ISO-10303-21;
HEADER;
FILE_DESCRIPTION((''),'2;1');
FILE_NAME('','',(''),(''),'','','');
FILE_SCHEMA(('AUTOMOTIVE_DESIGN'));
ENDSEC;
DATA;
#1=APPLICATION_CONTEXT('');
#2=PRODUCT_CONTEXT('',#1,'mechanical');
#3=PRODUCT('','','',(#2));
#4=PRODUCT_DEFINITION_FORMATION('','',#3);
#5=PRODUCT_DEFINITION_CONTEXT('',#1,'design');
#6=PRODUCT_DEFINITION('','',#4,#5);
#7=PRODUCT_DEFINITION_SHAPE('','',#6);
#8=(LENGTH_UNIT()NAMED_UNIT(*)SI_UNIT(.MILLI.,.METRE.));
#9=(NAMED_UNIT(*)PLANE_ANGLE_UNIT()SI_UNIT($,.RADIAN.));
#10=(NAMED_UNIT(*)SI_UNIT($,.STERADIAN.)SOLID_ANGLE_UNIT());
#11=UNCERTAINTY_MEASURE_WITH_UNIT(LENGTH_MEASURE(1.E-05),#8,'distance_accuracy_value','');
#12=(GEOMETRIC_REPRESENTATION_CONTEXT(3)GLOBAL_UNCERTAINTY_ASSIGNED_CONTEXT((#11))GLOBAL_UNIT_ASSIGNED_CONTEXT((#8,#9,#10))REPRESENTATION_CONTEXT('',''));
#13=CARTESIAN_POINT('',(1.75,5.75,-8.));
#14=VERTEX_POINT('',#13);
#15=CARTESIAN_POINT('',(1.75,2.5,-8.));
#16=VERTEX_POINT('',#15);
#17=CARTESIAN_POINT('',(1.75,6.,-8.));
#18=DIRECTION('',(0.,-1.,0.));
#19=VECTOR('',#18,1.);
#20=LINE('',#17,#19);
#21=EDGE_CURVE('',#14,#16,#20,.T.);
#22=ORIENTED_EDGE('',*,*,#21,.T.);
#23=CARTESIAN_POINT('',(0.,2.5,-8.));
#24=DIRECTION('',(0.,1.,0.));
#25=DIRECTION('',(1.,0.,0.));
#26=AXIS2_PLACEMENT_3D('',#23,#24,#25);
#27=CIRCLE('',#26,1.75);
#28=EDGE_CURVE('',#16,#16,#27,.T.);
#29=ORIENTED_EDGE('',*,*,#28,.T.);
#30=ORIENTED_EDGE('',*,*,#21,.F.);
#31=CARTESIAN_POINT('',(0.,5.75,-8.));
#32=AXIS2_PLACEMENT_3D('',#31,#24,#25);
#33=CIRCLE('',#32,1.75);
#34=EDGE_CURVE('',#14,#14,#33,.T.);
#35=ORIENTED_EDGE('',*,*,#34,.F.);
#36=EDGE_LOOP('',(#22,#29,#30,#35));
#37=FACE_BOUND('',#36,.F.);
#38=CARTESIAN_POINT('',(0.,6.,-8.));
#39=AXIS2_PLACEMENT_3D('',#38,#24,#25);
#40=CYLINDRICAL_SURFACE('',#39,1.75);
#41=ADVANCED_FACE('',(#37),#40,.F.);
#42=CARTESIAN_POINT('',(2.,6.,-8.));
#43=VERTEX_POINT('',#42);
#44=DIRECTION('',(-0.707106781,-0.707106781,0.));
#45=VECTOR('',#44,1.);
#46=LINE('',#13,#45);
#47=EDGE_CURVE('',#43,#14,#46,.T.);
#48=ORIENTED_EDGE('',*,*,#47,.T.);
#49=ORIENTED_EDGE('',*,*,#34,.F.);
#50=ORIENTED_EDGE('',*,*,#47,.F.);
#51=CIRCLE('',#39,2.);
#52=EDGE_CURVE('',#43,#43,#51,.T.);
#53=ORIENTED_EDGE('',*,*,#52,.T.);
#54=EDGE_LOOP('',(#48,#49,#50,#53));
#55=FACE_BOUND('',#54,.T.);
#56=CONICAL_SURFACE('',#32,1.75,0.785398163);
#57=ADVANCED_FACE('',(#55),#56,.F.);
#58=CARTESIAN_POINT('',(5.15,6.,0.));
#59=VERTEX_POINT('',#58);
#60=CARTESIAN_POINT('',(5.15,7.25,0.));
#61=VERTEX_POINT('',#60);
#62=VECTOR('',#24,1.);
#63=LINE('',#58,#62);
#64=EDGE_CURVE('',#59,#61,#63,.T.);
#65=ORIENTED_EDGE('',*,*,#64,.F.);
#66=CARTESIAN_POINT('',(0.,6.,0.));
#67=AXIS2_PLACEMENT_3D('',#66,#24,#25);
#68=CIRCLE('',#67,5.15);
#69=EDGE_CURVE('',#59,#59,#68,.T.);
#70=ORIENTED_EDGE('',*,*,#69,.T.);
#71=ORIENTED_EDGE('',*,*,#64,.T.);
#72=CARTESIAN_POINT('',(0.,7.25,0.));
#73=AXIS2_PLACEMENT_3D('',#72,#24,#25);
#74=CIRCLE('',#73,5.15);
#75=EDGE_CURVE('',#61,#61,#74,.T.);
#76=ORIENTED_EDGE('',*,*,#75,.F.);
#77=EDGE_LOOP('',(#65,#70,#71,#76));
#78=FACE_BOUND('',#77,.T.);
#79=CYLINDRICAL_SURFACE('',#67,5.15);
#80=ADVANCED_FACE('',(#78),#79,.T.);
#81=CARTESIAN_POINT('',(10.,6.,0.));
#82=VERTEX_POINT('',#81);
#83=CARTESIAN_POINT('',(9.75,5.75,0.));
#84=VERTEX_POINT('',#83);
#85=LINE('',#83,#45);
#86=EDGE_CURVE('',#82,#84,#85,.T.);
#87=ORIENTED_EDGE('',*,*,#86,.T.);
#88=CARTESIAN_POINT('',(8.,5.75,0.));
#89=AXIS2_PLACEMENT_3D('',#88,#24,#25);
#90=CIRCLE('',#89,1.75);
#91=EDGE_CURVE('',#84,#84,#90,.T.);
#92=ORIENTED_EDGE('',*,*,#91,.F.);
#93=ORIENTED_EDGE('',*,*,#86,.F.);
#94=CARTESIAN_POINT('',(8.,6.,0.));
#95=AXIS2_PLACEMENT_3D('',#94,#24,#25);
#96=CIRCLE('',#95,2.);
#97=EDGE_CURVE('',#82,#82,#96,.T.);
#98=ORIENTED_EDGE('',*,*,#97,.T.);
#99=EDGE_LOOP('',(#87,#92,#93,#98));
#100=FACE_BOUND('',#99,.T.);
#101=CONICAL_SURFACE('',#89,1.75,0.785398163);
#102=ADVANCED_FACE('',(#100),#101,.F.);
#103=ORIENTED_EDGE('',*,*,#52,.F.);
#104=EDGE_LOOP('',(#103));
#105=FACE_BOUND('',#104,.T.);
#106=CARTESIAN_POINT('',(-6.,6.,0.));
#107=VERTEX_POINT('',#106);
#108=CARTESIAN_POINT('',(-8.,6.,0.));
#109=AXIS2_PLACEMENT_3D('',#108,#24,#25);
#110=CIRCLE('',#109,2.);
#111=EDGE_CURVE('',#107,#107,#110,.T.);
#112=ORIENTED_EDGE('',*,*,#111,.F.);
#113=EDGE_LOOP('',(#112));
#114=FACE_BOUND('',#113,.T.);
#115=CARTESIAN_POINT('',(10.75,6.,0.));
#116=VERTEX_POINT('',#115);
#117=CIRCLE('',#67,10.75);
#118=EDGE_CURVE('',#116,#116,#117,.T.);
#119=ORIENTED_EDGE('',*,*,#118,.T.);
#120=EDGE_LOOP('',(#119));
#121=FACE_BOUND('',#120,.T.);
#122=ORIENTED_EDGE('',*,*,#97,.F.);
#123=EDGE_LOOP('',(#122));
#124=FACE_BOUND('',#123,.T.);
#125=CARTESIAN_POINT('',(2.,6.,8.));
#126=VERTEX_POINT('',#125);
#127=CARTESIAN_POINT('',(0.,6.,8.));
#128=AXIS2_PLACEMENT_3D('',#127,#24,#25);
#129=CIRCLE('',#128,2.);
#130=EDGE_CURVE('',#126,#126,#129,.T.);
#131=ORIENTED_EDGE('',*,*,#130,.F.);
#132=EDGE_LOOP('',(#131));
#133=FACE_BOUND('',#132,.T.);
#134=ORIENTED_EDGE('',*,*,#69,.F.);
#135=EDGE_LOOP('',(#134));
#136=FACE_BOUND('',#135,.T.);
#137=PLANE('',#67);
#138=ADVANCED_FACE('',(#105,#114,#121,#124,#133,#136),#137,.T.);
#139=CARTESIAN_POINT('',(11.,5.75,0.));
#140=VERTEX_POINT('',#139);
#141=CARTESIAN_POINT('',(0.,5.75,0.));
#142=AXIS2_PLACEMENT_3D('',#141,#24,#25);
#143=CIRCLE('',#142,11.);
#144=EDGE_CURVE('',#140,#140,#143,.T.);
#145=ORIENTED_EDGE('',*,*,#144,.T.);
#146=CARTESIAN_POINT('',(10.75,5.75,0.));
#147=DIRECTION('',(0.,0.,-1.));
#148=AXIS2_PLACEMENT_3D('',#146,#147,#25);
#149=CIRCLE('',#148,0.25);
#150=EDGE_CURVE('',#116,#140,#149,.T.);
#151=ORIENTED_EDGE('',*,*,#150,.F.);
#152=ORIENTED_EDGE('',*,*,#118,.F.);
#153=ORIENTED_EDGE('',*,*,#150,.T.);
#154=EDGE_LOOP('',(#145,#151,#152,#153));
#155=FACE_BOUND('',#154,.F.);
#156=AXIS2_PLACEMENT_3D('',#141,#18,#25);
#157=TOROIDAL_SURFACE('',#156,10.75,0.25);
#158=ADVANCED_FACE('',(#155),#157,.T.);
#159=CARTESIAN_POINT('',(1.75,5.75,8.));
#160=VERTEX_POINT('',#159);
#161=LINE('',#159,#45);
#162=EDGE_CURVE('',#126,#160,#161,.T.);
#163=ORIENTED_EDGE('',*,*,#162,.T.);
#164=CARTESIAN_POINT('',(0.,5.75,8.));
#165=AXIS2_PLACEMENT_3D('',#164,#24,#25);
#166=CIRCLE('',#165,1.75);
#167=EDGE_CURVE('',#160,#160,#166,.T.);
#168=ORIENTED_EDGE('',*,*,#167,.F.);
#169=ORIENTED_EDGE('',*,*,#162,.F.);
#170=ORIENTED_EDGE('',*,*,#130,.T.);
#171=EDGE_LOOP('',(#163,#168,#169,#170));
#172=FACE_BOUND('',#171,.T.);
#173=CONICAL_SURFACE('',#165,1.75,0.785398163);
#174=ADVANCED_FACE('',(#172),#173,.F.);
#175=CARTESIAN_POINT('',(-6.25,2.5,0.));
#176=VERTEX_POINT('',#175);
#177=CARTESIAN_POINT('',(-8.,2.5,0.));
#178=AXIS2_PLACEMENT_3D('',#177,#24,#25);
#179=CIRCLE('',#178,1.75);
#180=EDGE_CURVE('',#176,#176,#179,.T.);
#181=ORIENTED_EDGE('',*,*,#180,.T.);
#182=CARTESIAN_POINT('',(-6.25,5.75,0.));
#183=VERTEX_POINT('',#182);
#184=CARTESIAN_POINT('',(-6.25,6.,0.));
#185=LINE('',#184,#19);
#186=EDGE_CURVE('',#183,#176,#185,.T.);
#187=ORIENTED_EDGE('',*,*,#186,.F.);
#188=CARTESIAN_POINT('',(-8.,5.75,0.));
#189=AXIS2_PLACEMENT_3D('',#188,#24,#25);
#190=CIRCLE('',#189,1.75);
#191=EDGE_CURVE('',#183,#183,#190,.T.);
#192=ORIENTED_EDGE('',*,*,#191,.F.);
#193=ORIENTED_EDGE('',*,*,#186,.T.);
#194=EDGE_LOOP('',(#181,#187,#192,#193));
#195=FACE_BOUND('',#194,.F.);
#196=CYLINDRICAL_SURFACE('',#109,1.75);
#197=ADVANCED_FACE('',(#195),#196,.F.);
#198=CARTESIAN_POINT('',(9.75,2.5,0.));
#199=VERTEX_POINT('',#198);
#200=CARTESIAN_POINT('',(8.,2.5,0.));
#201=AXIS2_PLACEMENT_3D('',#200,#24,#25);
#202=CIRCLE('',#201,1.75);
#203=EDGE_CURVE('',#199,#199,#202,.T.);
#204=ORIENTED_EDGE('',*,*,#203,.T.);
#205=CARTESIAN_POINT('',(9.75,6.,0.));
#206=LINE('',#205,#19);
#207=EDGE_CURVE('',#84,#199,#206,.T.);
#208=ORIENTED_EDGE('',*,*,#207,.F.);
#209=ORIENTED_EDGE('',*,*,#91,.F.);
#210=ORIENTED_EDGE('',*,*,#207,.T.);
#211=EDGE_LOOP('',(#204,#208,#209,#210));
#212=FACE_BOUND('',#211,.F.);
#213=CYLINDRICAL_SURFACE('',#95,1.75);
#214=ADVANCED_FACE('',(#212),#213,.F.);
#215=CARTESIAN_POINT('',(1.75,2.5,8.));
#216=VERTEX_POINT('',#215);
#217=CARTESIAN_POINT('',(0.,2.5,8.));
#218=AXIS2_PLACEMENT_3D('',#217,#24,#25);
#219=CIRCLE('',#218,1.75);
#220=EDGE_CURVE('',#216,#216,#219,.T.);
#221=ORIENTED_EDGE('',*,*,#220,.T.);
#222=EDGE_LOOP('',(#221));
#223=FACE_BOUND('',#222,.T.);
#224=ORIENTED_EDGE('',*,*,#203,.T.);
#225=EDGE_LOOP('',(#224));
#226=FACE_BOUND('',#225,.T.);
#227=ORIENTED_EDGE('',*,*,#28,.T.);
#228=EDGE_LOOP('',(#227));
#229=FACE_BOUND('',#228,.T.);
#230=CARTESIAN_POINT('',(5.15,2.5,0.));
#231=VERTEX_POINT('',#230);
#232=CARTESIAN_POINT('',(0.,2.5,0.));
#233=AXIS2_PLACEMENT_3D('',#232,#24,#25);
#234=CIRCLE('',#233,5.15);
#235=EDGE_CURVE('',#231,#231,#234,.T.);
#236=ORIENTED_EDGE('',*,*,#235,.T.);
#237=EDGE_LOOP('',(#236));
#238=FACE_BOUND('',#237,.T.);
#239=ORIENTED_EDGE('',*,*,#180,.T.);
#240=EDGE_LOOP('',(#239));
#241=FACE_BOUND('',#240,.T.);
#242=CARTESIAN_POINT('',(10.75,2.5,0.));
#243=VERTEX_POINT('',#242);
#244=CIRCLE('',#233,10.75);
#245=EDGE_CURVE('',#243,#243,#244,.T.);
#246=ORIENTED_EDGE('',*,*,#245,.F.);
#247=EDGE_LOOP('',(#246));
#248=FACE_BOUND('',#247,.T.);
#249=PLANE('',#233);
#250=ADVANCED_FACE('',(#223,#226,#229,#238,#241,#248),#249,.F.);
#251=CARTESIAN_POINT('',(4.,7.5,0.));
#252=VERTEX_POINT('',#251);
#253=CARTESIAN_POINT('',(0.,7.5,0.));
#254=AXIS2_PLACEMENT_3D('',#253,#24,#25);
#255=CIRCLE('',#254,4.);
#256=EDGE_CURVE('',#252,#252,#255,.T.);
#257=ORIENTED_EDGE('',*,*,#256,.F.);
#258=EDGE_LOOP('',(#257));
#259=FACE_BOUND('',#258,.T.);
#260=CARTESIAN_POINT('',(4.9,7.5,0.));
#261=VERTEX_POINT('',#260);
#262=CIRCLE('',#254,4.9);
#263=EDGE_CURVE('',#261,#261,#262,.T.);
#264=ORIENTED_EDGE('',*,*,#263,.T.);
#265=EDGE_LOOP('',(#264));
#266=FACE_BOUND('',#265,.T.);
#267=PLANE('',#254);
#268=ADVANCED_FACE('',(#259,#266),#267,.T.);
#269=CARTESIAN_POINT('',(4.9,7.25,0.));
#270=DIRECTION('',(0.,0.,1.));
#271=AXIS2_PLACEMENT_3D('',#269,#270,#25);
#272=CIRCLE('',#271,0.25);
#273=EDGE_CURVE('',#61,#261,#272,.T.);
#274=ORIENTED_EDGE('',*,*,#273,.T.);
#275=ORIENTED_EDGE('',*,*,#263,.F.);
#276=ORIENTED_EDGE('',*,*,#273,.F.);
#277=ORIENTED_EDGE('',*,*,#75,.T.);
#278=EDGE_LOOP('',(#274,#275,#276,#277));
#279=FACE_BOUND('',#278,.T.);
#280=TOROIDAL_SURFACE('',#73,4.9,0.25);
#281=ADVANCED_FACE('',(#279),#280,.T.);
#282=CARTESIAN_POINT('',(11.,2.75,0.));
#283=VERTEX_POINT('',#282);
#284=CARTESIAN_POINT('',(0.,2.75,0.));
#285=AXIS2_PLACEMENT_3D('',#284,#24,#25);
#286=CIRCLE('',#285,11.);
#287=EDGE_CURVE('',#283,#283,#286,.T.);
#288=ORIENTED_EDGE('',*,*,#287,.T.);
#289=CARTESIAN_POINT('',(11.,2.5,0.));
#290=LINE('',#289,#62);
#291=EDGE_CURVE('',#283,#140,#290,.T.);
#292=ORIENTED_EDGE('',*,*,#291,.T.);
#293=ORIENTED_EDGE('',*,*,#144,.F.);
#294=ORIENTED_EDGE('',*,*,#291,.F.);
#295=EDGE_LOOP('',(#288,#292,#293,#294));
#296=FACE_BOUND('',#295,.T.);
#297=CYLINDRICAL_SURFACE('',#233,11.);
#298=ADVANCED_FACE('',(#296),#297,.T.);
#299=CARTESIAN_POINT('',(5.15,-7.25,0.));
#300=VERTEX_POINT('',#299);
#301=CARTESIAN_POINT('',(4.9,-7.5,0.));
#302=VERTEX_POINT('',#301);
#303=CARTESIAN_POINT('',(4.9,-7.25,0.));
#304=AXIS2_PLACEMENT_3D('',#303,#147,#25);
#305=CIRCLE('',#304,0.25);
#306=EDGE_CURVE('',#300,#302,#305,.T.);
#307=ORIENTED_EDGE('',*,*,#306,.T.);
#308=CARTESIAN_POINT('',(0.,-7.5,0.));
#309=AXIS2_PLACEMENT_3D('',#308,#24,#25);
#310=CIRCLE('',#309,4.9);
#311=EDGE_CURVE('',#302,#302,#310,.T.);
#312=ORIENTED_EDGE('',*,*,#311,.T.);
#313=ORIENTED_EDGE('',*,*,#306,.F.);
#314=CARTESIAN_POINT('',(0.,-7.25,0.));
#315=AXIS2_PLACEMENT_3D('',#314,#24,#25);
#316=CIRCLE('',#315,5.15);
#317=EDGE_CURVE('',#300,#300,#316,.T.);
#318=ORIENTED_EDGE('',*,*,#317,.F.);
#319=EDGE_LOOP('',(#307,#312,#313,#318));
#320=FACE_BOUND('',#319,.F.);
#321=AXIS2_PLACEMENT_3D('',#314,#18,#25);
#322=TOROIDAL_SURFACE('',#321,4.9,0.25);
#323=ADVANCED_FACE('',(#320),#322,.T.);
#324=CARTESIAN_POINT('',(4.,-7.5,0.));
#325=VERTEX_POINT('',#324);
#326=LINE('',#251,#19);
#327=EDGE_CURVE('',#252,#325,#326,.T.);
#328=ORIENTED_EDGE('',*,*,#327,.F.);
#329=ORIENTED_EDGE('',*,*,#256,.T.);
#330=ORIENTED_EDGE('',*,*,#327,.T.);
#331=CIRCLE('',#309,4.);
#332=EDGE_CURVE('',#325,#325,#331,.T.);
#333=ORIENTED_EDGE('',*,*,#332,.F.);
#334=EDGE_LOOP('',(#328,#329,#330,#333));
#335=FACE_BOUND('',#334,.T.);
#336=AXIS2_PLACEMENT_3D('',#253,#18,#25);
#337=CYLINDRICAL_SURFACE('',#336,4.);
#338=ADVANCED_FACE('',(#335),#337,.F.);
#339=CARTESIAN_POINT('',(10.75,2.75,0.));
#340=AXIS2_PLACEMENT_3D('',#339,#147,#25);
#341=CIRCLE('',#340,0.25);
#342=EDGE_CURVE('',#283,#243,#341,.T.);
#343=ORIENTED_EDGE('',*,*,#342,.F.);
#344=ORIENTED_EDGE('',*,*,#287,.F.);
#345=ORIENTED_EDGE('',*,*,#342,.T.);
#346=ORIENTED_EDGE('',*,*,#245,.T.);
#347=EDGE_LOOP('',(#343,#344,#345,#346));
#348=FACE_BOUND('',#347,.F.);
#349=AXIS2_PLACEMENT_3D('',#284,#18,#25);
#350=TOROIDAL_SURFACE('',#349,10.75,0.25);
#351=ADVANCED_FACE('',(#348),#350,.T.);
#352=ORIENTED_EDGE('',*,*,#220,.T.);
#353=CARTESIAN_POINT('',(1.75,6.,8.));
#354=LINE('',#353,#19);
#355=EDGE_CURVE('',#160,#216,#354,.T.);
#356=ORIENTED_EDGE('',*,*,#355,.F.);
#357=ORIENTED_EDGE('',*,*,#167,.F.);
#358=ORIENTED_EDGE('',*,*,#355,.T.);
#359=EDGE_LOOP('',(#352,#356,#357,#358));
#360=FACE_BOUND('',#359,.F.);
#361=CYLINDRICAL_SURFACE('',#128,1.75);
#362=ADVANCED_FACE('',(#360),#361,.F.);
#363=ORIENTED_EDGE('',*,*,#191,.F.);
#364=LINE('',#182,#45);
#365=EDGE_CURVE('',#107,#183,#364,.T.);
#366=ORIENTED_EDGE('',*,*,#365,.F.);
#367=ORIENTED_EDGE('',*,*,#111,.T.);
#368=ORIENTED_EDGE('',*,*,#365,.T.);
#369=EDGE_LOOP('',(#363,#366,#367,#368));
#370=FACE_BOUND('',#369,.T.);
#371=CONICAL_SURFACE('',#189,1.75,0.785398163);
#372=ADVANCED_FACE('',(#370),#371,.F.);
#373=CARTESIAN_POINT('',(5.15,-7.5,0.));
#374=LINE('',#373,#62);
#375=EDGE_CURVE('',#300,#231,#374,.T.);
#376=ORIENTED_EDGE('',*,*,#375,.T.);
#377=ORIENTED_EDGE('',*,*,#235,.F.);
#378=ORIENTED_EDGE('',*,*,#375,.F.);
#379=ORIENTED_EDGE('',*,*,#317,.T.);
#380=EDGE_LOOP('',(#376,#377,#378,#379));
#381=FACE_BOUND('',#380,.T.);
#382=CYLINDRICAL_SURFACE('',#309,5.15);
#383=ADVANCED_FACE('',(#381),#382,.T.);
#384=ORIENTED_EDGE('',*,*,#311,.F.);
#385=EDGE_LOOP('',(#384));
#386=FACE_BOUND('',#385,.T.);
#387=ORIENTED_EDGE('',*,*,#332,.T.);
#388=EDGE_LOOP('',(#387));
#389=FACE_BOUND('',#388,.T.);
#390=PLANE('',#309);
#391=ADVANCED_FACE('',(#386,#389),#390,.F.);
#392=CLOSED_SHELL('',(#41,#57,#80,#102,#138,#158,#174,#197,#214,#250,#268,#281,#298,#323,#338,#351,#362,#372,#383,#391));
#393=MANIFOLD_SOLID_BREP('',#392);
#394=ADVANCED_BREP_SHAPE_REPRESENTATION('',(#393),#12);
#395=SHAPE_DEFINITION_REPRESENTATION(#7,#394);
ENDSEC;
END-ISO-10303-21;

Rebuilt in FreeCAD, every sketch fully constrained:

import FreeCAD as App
import Part
import Sketcher

V = App.Vector


def edges_at(feature, points):
    """Names of the edges that pass closest to the given points."""
    edges = feature.Shape.Edges
    near = lambda p: min(range(len(edges)), key=lambda i: edges[i].distToShape(Part.Vertex(*p))[0])
    return sorted({f"Edge{near(p) + 1}" for p in points})

doc = App.newDocument("Part")
params = doc.addObject("Spreadsheet::Sheet", "Params")
for row, (alias, value) in enumerate([
    ("sketch1_height", "15 mm"),
    ("sketch1_height2", "3.5 mm"),
    ("sketch1_height3", "1.5 mm"),
    ("revolution_angle", "360 deg"),
    ("sketch2_diameter", "3.5 mm"),
    ("chamfer_size", "0.25 mm"),
    ("fillet_radius", "0.25 mm"),
], start=1):
    params.set(f"A{row}", alias)
    params.set(f"B{row}", "=" + value)
    params.setAlias(f"B{row}", alias)

body = doc.addObject("PartDesign::Body", "Body")

# Sketch on XY plane
sketch1 = doc.addObject("Sketcher::SketchObject", "Sketch")
body.addObject(sketch1)
sketch1.AttachmentSupport = (doc.XY_Plane, [""])
sketch1.MapMode = "FlatFace"
sketch1.addGeometry([
    Part.LineSegment(V(5.2, 7.5, 0), V(4, 7.5, 0)),  # 0
    Part.LineSegment(V(4, 7.5, 0), V(4, -7.5, 0)),  # 1
    Part.LineSegment(V(4, -7.5, 0), V(5.2, -7.5, 0)),  # 2
    Part.LineSegment(V(5.2, -7.5, 0), V(5.2, 2.5, 0)),  # 3
    Part.LineSegment(V(5.2, 2.5, 0), V(11, 2.5, 0)),  # 4
    Part.LineSegment(V(11, 2.5, 0), V(11, 6, 0)),  # 5
    Part.LineSegment(V(11, 6, 0), V(5.2, 6, 0)),  # 6
    Part.LineSegment(V(5.2, 6, 0), V(5.2, 7.5, 0)),  # 7
], False)
sketch1.addConstraint([
    Sketcher.Constraint("Coincident", 0, 2, 1, 1),
    Sketcher.Constraint("Coincident", 1, 2, 2, 1),
    Sketcher.Constraint("Coincident", 2, 2, 3, 1),
    Sketcher.Constraint("Coincident", 3, 2, 4, 1),
    Sketcher.Constraint("Coincident", 4, 2, 5, 1),
    Sketcher.Constraint("Coincident", 5, 2, 6, 1),
    Sketcher.Constraint("Coincident", 6, 2, 7, 1),
    Sketcher.Constraint("Coincident", 7, 2, 0, 1),
    Sketcher.Constraint("Horizontal", 0),
    Sketcher.Constraint("Vertical", 1),
    Sketcher.Constraint("Horizontal", 2),
    Sketcher.Constraint("Vertical", 3),
    Sketcher.Constraint("Horizontal", 4),
    Sketcher.Constraint("Vertical", 5),
    Sketcher.Constraint("Horizontal", 6),
    Sketcher.Constraint("Vertical", 7),
    Sketcher.Constraint("Symmetric", 2, 2, 7, 2, -1),
    Sketcher.Constraint("DistanceY", 1, 2, 1, 1, 15.0),
    Sketcher.Constraint("DistanceY", 5, 1, 5, 2, 3.5),
    Sketcher.Constraint("DistanceY", 7, 1, 7, 2, 1.5),
    Sketcher.Constraint("DistanceX", -1, 1, 0, 2, 4.0),
    Sketcher.Constraint("DistanceX", -1, 1, 4, 2, 11.0),
    Sketcher.Constraint("DistanceX", -1, 1, 2, 2, 5.15),
])
sketch1.setExpression("Constraints[17]", "Params.sketch1_height")
sketch1.setExpression("Constraints[18]", "Params.sketch1_height2")
sketch1.setExpression("Constraints[19]", "Params.sketch1_height3")
revolution = doc.addObject("PartDesign::Revolution", "Revolution")
body.addObject(revolution)
revolution.Profile = sketch1
revolution.ReferenceAxis = (sketch1, ["V_Axis"])
revolution.setExpression("Angle", "Params.revolution_angle")

# Sketch on XZ plane
sketch2 = doc.addObject("Sketcher::SketchObject", "Sketch001")
body.addObject(sketch2)
sketch2.AttachmentSupport = (doc.XZ_Plane, [""])
sketch2.MapMode = "FlatFace"
sketch2.AttachmentOffset = App.Placement(V(0, 0, -6), App.Rotation())
sketch2.addGeometry([
    Part.Circle(V(-8, 0, 0), V(0, 0, 1), 1.8),
    Part.Circle(V(0, -8, 0), V(0, 0, 1), 1.8),
    Part.Circle(V(8, 0, 0), V(0, 0, 1), 1.8),
    Part.Circle(V(0, 8, 0), V(0, 0, 1), 1.8),
], False)
sketch2.addConstraint([
    Sketcher.Constraint("Equal", 0, 1),
    Sketcher.Constraint("Equal", 1, 2),
    Sketcher.Constraint("Equal", 2, 3),
    Sketcher.Constraint("Symmetric", 0, 3, 2, 3, -1, 1),
    Sketcher.Constraint("Symmetric", 1, 3, 3, 3, -1, 1),
    Sketcher.Constraint("PointOnObject", 0, 3, -1),
    Sketcher.Constraint("PointOnObject", 1, 3, -2),
    Sketcher.Constraint("Diameter", 0, 3.5),
    Sketcher.Constraint("DistanceX", 0, 3, 2, 3, 16.0),
    Sketcher.Constraint("DistanceY", 1, 3, 3, 3, 16.0),
])
sketch2.setExpression("Constraints[7]", "Params.sketch2_diameter")
pocket1 = doc.addObject("PartDesign::Pocket", "Pocket")
body.addObject(pocket1)
pocket1.Profile = sketch2
pocket1.Type = "ThroughAll"
pocket1.Reversed = True
doc.recompute()

chamfer = doc.addObject("PartDesign::Chamfer", "Chamfer")
body.addObject(chamfer)
chamfer.Base = (pocket1, edges_at(pocket1, [
    (-1.75, 6, 8),
    (6.25, 6, 0),
    (-1.75, 6, -8),
    (-9.75, 6, 0),
]))
chamfer.setExpression("Size", "Params.chamfer_size")
doc.recompute()

fillet = doc.addObject("PartDesign::Fillet", "Fillet")
body.addObject(fillet)
fillet.Base = (chamfer, edges_at(chamfer, [
    (-11, 6, 0),
    (-11, 2.5, 0),
    (-5.15, 7.5, 0),
    (-5.15, -7.5, 0),
]))
fillet.setExpression("Radius", "Params.fillet_radius")

doc.recompute()
